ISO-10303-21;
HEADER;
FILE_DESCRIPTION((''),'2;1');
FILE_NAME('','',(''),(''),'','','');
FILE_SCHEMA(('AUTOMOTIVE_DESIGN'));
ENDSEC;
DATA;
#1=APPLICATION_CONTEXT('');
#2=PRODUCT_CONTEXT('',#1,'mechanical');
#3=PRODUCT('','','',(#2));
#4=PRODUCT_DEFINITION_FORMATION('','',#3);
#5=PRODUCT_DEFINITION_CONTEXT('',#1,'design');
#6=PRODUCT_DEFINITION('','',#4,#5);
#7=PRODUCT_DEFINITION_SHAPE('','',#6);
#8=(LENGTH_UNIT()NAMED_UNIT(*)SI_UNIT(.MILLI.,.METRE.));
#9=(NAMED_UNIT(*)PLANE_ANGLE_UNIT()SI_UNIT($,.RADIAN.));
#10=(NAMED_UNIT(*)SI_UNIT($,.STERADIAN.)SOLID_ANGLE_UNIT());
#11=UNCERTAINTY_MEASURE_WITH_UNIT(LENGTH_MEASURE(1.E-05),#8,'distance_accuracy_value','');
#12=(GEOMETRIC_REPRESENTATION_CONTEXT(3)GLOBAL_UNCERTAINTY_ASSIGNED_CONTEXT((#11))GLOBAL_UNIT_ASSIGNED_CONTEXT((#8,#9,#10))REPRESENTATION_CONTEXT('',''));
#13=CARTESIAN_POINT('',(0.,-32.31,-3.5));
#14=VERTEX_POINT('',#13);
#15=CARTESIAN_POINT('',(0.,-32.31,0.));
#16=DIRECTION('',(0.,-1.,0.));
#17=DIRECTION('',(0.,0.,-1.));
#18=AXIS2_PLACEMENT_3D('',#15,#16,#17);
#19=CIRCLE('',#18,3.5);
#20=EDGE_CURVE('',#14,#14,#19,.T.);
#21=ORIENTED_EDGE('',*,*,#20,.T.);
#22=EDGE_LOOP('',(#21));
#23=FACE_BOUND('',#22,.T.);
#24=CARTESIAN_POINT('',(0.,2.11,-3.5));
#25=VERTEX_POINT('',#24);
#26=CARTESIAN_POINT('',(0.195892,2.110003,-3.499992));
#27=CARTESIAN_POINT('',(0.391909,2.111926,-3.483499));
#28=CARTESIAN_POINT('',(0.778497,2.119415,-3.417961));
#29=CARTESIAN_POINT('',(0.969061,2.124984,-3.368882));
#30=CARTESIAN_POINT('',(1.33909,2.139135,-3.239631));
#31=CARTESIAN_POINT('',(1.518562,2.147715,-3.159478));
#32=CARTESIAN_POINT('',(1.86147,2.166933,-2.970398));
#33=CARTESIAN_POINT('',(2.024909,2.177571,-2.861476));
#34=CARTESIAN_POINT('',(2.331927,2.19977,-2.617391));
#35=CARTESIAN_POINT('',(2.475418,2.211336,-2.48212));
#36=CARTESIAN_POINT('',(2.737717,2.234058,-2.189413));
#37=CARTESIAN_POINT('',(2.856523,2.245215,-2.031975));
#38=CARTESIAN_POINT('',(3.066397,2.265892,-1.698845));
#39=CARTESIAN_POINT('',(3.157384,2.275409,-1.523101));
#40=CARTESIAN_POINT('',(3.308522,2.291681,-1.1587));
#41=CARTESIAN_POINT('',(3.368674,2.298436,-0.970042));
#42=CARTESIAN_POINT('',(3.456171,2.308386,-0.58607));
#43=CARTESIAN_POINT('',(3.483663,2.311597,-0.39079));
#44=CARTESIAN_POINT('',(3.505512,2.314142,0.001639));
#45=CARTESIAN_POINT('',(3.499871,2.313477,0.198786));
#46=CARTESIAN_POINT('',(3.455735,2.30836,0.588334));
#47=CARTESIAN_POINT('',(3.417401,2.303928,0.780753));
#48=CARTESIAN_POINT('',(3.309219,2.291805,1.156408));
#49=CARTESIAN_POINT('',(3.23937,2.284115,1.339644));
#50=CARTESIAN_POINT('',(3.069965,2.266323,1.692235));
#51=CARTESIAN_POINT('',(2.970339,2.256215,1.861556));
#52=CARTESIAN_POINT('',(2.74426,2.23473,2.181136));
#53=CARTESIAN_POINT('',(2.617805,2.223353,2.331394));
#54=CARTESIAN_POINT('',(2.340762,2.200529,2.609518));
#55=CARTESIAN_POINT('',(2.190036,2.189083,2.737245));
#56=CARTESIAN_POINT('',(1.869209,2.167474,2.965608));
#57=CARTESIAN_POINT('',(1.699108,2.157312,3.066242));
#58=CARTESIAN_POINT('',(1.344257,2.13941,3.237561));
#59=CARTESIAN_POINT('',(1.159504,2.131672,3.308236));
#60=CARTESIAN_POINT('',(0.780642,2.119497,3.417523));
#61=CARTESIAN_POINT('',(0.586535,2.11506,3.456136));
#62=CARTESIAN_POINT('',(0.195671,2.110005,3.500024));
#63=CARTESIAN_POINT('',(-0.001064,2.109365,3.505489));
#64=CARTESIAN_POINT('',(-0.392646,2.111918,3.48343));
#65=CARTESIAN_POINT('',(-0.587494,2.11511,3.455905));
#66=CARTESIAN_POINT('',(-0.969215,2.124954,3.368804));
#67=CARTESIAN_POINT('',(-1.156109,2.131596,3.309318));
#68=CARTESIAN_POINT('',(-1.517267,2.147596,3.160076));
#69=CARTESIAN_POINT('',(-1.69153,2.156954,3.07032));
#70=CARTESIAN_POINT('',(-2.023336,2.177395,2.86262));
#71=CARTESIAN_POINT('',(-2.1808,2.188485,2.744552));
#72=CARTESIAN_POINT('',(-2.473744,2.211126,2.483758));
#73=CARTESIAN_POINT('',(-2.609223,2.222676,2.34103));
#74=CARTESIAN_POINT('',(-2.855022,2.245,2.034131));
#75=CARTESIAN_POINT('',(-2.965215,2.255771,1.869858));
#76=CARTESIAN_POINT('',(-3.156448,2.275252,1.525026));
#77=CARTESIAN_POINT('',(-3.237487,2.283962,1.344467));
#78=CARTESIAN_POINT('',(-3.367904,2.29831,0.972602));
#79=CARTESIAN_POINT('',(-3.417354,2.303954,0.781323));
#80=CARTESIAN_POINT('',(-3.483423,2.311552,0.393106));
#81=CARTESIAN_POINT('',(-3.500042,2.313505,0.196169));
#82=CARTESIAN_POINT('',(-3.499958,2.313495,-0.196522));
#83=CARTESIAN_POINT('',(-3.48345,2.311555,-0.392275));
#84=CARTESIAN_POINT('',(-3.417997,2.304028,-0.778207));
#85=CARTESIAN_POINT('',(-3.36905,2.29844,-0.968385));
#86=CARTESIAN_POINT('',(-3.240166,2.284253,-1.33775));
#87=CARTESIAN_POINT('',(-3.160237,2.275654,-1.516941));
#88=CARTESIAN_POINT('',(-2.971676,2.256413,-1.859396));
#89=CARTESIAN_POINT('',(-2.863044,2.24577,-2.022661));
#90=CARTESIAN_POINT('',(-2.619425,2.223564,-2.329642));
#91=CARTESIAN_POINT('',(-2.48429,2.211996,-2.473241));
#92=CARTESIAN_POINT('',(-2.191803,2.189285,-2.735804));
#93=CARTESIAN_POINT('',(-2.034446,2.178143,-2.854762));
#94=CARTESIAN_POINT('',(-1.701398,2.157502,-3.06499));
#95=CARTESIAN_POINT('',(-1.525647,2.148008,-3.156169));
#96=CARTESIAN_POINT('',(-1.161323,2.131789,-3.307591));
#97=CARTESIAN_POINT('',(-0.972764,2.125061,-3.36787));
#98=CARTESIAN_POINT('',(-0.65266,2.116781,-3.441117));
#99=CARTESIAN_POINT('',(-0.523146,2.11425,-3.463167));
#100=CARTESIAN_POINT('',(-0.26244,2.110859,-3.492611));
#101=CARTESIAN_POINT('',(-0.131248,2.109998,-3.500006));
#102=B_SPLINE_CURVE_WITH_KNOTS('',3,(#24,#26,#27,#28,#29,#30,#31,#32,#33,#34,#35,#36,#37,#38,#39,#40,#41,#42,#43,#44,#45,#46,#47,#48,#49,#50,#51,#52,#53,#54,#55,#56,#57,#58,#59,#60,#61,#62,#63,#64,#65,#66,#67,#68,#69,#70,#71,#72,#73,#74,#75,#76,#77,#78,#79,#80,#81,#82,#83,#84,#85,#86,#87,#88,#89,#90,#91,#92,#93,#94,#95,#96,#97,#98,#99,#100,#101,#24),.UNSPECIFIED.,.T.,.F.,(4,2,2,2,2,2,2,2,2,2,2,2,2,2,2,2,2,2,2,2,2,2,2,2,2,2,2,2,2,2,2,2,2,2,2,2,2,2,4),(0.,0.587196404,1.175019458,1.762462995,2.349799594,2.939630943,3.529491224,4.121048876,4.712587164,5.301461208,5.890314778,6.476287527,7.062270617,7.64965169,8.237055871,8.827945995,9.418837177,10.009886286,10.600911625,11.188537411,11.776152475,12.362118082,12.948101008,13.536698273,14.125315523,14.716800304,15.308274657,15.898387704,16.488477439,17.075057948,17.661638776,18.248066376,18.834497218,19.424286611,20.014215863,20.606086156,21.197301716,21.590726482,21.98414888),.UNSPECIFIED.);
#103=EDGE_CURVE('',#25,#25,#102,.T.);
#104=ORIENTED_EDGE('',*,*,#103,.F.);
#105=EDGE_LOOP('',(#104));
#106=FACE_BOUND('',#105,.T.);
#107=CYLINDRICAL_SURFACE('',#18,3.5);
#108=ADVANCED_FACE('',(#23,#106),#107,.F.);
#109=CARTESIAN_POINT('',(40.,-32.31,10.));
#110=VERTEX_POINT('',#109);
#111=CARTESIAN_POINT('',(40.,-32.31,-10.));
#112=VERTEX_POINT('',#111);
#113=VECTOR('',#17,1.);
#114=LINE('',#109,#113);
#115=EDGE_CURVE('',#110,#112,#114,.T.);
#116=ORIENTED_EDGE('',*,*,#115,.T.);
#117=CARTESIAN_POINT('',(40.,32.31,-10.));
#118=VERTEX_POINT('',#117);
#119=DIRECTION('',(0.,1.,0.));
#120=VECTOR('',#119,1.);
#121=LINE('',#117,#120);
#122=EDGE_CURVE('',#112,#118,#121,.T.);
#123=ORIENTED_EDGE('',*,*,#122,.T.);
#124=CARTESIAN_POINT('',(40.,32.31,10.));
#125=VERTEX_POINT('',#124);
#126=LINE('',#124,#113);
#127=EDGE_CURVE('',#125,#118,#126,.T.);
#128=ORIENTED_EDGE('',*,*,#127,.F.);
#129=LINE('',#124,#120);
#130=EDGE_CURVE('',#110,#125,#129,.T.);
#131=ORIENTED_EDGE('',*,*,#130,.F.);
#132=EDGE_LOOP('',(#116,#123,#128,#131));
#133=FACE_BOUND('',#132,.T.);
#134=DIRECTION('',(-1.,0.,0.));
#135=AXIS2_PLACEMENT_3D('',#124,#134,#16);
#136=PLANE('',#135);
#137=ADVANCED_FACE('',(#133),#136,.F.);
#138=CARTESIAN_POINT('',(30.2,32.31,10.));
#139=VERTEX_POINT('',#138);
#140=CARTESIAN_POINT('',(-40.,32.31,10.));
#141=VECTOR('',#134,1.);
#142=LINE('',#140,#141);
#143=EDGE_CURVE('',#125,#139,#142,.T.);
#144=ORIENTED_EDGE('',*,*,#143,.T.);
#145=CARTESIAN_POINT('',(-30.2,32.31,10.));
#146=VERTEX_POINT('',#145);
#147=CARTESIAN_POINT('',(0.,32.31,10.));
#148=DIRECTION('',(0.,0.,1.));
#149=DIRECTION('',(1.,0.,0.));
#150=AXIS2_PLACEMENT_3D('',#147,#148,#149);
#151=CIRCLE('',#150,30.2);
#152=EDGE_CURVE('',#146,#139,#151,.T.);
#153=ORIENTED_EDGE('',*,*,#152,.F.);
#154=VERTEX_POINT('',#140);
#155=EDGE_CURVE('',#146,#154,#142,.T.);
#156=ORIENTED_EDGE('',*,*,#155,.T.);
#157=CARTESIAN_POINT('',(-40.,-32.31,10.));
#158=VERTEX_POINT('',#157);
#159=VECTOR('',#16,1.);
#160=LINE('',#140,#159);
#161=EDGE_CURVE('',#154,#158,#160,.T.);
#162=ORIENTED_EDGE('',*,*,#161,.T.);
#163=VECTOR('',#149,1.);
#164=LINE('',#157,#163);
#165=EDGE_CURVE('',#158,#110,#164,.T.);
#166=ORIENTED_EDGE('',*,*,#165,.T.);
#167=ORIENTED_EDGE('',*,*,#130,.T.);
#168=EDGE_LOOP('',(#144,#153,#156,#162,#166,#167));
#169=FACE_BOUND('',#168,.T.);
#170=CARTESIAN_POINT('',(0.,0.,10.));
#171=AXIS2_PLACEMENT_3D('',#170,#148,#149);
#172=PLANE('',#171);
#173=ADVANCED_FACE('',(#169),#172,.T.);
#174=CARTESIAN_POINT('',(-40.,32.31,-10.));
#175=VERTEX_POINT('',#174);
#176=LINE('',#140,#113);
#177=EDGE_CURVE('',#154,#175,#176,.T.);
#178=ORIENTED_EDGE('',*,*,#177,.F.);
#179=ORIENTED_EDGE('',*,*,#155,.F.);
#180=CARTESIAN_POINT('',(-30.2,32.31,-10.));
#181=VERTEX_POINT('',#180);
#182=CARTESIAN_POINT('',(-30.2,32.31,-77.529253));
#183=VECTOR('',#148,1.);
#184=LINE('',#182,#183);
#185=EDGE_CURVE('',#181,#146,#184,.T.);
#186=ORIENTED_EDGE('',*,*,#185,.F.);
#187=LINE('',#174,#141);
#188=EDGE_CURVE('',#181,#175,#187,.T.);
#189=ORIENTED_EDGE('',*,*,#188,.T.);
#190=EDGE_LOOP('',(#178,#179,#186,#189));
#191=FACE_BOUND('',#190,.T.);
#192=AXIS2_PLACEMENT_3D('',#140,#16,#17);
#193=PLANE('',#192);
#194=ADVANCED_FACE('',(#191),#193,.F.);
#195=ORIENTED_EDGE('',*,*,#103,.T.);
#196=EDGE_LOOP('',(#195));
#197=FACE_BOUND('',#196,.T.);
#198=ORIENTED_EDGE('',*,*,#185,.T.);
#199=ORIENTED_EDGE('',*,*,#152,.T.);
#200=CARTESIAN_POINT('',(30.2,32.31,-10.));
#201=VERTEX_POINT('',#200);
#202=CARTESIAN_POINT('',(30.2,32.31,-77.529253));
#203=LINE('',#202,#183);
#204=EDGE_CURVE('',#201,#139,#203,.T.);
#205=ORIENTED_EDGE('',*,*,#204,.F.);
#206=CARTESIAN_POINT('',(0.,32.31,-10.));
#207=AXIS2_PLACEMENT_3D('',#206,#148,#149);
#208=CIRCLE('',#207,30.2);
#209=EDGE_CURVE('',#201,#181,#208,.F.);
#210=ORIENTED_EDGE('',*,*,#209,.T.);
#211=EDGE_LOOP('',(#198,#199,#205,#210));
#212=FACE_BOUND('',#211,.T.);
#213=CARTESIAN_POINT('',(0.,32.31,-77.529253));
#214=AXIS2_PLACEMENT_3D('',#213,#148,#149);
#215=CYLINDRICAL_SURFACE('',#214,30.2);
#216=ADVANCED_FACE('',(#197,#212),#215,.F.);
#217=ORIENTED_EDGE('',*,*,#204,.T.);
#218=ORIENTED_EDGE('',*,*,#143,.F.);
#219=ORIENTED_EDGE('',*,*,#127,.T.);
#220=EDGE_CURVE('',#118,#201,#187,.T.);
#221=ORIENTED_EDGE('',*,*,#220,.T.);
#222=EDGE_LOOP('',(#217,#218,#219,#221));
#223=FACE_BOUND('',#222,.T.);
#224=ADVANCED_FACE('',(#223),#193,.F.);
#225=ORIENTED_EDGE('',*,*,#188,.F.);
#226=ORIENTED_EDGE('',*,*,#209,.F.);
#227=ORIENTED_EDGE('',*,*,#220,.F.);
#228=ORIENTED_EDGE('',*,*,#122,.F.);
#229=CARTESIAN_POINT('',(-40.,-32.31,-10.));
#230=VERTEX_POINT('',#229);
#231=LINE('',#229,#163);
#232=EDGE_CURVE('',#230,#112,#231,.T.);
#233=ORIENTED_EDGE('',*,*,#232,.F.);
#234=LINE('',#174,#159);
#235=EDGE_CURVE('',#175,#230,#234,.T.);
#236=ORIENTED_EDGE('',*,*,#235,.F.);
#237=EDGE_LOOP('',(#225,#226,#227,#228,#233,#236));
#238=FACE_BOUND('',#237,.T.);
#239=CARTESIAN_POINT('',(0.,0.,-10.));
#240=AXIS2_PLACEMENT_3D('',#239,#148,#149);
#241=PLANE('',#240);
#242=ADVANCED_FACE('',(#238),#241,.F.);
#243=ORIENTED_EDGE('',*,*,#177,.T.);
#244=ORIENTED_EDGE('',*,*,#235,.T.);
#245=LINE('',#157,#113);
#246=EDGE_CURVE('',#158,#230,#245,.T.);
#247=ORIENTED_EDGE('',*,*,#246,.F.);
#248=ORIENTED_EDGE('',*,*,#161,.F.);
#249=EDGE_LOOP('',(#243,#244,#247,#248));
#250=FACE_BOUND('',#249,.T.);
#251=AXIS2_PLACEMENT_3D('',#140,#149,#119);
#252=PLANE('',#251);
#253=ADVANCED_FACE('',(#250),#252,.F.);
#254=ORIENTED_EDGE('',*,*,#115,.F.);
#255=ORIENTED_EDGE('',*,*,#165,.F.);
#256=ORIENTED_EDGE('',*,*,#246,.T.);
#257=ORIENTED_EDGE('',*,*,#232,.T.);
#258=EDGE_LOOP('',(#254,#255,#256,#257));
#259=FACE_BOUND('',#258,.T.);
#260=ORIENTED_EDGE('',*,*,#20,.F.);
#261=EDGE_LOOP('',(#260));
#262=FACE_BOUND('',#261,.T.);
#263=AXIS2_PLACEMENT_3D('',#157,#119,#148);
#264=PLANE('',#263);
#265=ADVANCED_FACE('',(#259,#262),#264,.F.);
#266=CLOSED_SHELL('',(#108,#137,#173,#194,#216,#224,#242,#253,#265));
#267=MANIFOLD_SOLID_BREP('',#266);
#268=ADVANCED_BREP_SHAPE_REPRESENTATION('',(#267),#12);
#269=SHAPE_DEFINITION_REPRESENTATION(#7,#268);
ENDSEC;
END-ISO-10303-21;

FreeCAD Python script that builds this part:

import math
import FreeCAD as App
import Part
import Sketcher


def add_polygon(sketch, points):
    """Adds a closed chain of lines whose ends are joined by coincident constraints."""
    first, n = sketch.GeometryCount, len(points)
    for a, b in zip(points, points[1:] + points[:1]):
        sketch.addGeometry(Part.LineSegment(App.Vector(*a, 0), App.Vector(*b, 0)), False)
    for i in range(n):
        sketch.addConstraint(Sketcher.Constraint("Coincident", first + i, 2, first + (i + 1) % n, 1))

doc = App.newDocument("Part")
body = doc.addObject("PartDesign::Body", "Body")

# Sketch on XY plane
sketch1 = body.newObject("Sketcher::SketchObject", "Sketch")
sketch1.AttachmentSupport = (doc.getObject("XY_Plane"), [""])
sketch1.MapMode = "FlatFace"
add_polygon(sketch1, [(-40, 32), (-40, -32), (40, -32), (40, 32)])  # lines 0-3
sketch1.addConstraint([
    Sketcher.Constraint("Vertical", 0),
    Sketcher.Constraint("Horizontal", 1),
    Sketcher.Constraint("Vertical", 2),
    Sketcher.Constraint("Horizontal", 3),
    Sketcher.Constraint("Symmetric", 0, 2, 2, 2, -1, 1),
    Sketcher.Constraint("DistanceX", 1, 1, 1, 2, 80.0),
    Sketcher.Constraint("DistanceY", 0, 2, 0, 1, 64.62),
])
pad1 = body.newObject("PartDesign::Pad", "Pad")
pad1.Profile = sketch1
pad1.Length = 20
pad1.Midplane = True

# Sketch on XY plane
sketch2 = body.newObject("Sketcher::SketchObject", "Sketch001")
sketch2.AttachmentSupport = (doc.getObject("XY_Plane"), [""])
sketch2.MapMode = "FlatFace"
sketch2.AttachmentOffset = App.Placement(App.Vector(0, 0, 10), App.Rotation())
sketch2.addGeometry([
    Part.LineSegment(App.Vector(30, 32, 0), App.Vector(-30, 32, 0)),
    Part.ArcOfCircle(Part.Circle(App.Vector(0, 32, 0), App.Vector(0, 0, 1), 30), math.radians(180), math.radians(360)),
], False)
sketch2.addConstraint([
    Sketcher.Constraint("Coincident", 0, 1, 1, 2),
    Sketcher.Constraint("Coincident", 1, 1, 0, 2),
    Sketcher.Constraint("Horizontal", 0),
    Sketcher.Constraint("PointOnObject", 1, 3, -2),
    Sketcher.Constraint("Horizontal", 1, 3, 0, 1),
    Sketcher.Constraint("Radius", 1, 30.2),
    Sketcher.Constraint("DistanceY", -1, 1, 1, 3, 32.31),
])
pocket1 = body.newObject("PartDesign::Pocket", "Pocket")
pocket1.Profile = sketch2
pocket1.Length = 20

# Sketch on XZ plane
sketch3 = body.newObject("Sketcher::SketchObject", "Sketch002")
sketch3.AttachmentSupport = (doc.getObject("XZ_Plane"), [""])
sketch3.MapMode = "FlatFace"
sketch3.AttachmentOffset = App.Placement(App.Vector(0, 0, 32.31), App.Rotation())
sketch3.addGeometry(Part.Circle(App.Vector(0, 0, 0), App.Vector(0, 0, 1), 3.5), False)
sketch3.addConstraint([
    Sketcher.Constraint("Coincident", 0, 3, -1, 1),
    Sketcher.Constraint("Diameter", 0, 7.0),
])
doc.recompute()
hole = body.newObject("PartDesign::Hole", "Hole")
hole.Profile = sketch3
hole.ThreadType = "None"
hole.Diameter = 7
hole.DepthType = "ThroughAll"

doc.recompute()
